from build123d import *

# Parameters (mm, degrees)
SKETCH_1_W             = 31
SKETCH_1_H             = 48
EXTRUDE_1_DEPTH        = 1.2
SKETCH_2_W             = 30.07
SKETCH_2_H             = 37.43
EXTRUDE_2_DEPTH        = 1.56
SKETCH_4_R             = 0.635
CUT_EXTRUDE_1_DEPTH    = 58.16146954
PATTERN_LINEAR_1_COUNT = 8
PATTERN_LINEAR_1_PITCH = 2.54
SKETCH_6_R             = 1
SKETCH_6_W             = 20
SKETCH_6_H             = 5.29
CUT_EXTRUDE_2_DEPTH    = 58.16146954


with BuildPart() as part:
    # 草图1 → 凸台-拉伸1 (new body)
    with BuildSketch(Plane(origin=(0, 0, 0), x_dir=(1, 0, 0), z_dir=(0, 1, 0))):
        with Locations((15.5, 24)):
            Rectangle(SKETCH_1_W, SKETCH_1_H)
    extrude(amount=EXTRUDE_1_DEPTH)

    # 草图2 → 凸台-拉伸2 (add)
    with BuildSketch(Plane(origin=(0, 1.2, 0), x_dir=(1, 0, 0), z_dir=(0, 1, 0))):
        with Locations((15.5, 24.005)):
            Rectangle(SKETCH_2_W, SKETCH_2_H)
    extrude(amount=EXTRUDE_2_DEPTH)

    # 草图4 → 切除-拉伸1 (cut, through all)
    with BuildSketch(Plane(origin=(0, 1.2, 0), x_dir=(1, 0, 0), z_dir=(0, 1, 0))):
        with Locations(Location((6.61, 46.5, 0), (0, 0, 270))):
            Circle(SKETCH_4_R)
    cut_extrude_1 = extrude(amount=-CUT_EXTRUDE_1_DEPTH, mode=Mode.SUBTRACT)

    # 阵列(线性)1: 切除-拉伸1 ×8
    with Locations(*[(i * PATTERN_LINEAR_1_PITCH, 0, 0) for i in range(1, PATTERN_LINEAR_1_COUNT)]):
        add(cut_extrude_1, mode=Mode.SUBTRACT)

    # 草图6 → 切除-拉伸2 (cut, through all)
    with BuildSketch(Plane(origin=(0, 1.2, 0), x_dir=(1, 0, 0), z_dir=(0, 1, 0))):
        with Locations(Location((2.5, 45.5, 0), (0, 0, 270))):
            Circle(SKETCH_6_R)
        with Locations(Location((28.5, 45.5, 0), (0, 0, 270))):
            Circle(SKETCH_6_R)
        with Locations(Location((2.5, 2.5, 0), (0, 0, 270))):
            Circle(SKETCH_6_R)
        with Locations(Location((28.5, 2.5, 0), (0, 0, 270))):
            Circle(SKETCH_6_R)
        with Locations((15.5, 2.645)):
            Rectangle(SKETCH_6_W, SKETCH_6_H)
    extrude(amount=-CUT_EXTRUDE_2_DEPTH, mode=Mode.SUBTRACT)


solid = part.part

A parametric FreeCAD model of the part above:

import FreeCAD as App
import Part
import Sketcher

V = App.Vector

doc = App.newDocument("Part")
body = doc.addObject("PartDesign::Body", "Body")

sketch1 = doc.addObject("Sketcher::SketchObject", "Sketch")
body.addObject(sketch1)
sketch1.AttachmentSupport = (doc.XZ_Plane, [""])
sketch1.MapMode = "FlatFace"
sketch1.addGeometry(Part.LineSegment(V(0, -48, 0), V(0, 0, 0)), False)
sketch1.addGeometry(Part.LineSegment(V(0, 0, 0), V(31, 0, 0)), False)
sketch1.addGeometry(Part.LineSegment(V(31, 0, 0), V(31, -48, 0)), False)
sketch1.addGeometry(Part.LineSegment(V(31, -48, 0), V(0, -48, 0)), False)
sketch1.addConstraint(Sketcher.Constraint("Coincident", 0, 2, 1, 1))
sketch1.addConstraint(Sketcher.Constraint("Coincident", 1, 2, 2, 1))
sketch1.addConstraint(Sketcher.Constraint("Coincident", 2, 2, 3, 1))
sketch1.addConstraint(Sketcher.Constraint("Coincident", 3, 2, 0, 1))
sketch1.addConstraint(Sketcher.Constraint("Vertical", 0))
sketch1.addConstraint(Sketcher.Constraint("Horizontal", 1))
sketch1.addConstraint(Sketcher.Constraint("Vertical", 2))
sketch1.addConstraint(Sketcher.Constraint("Horizontal", 3))
sketch1.addConstraint(Sketcher.Constraint("Coincident", 0, 2, -1, 1))
sketch1.addConstraint(Sketcher.Constraint("DistanceX", 1, 1, 1, 2, 31.0))
sketch1.addConstraint(Sketcher.Constraint("DistanceY", 0, 1, 0, 2, 48.0))
pad1 = doc.addObject("PartDesign::Pad", "Pad")
body.addObject(pad1)
pad1.Profile = sketch1
pad1.Length = 1.2
pad1.Reversed = True

sketch2 = doc.addObject("Sketcher::SketchObject", "Sketch001")
body.addObject(sketch2)
sketch2.AttachmentSupport = (doc.XZ_Plane, [""])
sketch2.MapMode = "FlatFace"
sketch2.AttachmentOffset = App.Placement(V(0, 0, -1.2), App.Rotation())
sketch2.addGeometry(Part.LineSegment(V(0.465, -42.72, 0), V(0.465, -5.29, 0)), False)
sketch2.addGeometry(Part.LineSegment(V(0.465, -5.29, 0), V(30.535, -5.29, 0)), False)
sketch2.addGeometry(Part.LineSegment(V(30.535, -5.29, 0), V(30.535, -42.72, 0)), False)
sketch2.addGeometry(Part.LineSegment(V(30.535, -42.72, 0), V(0.465, -42.72, 0)), False)
sketch2.addConstraint(Sketcher.Constraint("Coincident", 0, 2, 1, 1))
sketch2.addConstraint(Sketcher.Constraint("Coincident", 1, 2, 2, 1))
sketch2.addConstraint(Sketcher.Constraint("Coincident", 2, 2, 3, 1))
sketch2.addConstraint(Sketcher.Constraint("Coincident", 3, 2, 0, 1))
sketch2.addConstraint(Sketcher.Constraint("Vertical", 0))
sketch2.addConstraint(Sketcher.Constraint("Horizontal", 1))
sketch2.addConstraint(Sketcher.Constraint("Vertical", 2))
sketch2.addConstraint(Sketcher.Constraint("Horizontal", 3))
sketch2.addConstraint(Sketcher.Constraint("DistanceX", 1, 1, 1, 2, 30.07))
sketch2.addConstraint(Sketcher.Constraint("DistanceY", 0, 1, 0, 2, 37.43))
sketch2.addConstraint(Sketcher.Constraint("DistanceY", 0, 2, -1, 1, 5.29))
sketch2.addConstraint(Sketcher.Constraint("DistanceX", -1, 1, 0, 2, 0.465))
pad2 = doc.addObject("PartDesign::Pad", "Pad001")
body.addObject(pad2)
pad2.Profile = sketch2
pad2.Length = 1.56
pad2.Reversed = True

sketch3 = doc.addObject("Sketcher::SketchObject", "Sketch002")
body.addObject(sketch3)
sketch3.AttachmentSupport = (doc.XZ_Plane, [""])
sketch3.MapMode = "FlatFace"
sketch3.AttachmentOffset = App.Placement(V(0, 0, -1.2), App.Rotation())
sketch3.addGeometry(Part.Circle(V(6.61, -46.5, 0), V(0, 0, 1), 0.635), False)
sketch3.addConstraint(Sketcher.Constraint("Diameter", 0, 1.27))
sketch3.addConstraint(Sketcher.Constraint("DistanceY", 0, 3, -1, 1, 46.5))
sketch3.addConstraint(Sketcher.Constraint("DistanceX", -1, 1, 0, 3, 6.61))
pocket1 = doc.addObject("PartDesign::Pocket", "Pocket")
body.addObject(pocket1)
pocket1.Profile = sketch3
pocket1.Type = "ThroughAll"
pocket1.Reversed = True
doc.recompute()

linearpattern = doc.addObject("PartDesign::LinearPattern", "LinearPattern")
body.addObject(linearpattern)
linearpattern.Originals = [pocket1]
linearpattern.Direction = (doc.X_Axis, [""])
linearpattern.Mode = "offset"
linearpattern.Offset = 2.54
linearpattern.Occurrences = 8
body.Tip = linearpattern

sketch4 = doc.addObject("Sketcher::SketchObject", "Sketch003")
body.addObject(sketch4)
sketch4.AttachmentSupport = (doc.XZ_Plane, [""])
sketch4.MapMode = "FlatFace"
sketch4.AttachmentOffset = App.Placement(V(0, 0, -1.2), App.Rotation())
sketch4.addGeometry(Part.Circle(V(2.5, -45.5, 0), V(0, 0, 1), 1), False)
sketch4.addGeometry(Part.Circle(V(28.5, -45.5, 0), V(0, 0, 1), 1), False)
sketch4.addGeometry(Part.Circle(V(2.5, -2.5, 0), V(0, 0, 1), 1), False)
sketch4.addGeometry(Part.Circle(V(28.5, -2.5, 0), V(0, 0, 1), 1), False)
sketch4.addGeometry(Part.LineSegment(V(5.5, -5.29, 0), V(5.5, 0, 0)), False)
sketch4.addGeometry(Part.LineSegment(V(5.5, 0, 0), V(25.5, 0, 0)), False)
sketch4.addGeometry(Part.LineSegment(V(25.5, 0, 0), V(25.5, -5.29, 0)), False)
sketch4.addGeometry(Part.LineSegment(V(25.5, -5.29, 0), V(5.5, -5.29, 0)), False)
sketch4.addConstraint(Sketcher.Constraint("Coincident", 4, 2, 5, 1))
sketch4.addConstraint(Sketcher.Constraint("Coincident", 5, 2, 6, 1))
sketch4.addConstraint(Sketcher.Constraint("Coincident", 6, 2, 7, 1))
sketch4.addConstraint(Sketcher.Constraint("Coincident", 7, 2, 4, 1))
sketch4.addConstraint(Sketcher.Constraint("Vertical", 4))
sketch4.addConstraint(Sketcher.Constraint("Horizontal", 5))
sketch4.addConstraint(Sketcher.Constraint("Vertical", 6))
sketch4.addConstraint(Sketcher.Constraint("Horizontal", 7))
sketch4.addConstraint(Sketcher.Constraint("Equal", 0, 1))
sketch4.addConstraint(Sketcher.Constraint("Equal", 1, 2))
sketch4.addConstraint(Sketcher.Constraint("Equal", 2, 3))
sketch4.addConstraint(Sketcher.Constraint("PointOnObject", 4, 2, -1))
sketch4.addConstraint(Sketcher.Constraint("Horizontal", 0, 3, 1, 3))
sketch4.addConstraint(Sketcher.Constraint("Horizontal", 2, 3, 3, 3))
sketch4.addConstraint(Sketcher.Constraint("Vertical", 0, 3, 2, 3))
sketch4.addConstraint(Sketcher.Constraint("Vertical", 1, 3, 3, 3))
sketch4.addConstraint(Sketcher.Constraint("Diameter", 0, 2.0))
sketch4.addConstraint(Sketcher.Constraint("DistanceX", 5, 1, 5, 2, 20.0))
sketch4.addConstraint(Sketcher.Constraint("DistanceX", 0, 3, 1, 3, 26.0))
sketch4.addConstraint(Sketcher.Constraint("DistanceY", 0, 3, 2, 3, 43.0))
sketch4.addConstraint(Sketcher.Constraint("DistanceX", 2, 3, 4, 2, 3.0))
sketch4.addConstraint(Sketcher.Constraint("DistanceY", 4, 1, 4, 2, 5.29))
sketch4.addConstraint(Sketcher.Constraint("DistanceX", -1, 1, 0, 3, 2.5))
sketch4.addConstraint(Sketcher.Constraint("DistanceY", 0, 3, -1, 1, 45.5))
pocket2 = doc.addObject("PartDesign::Pocket", "Pocket001")
body.addObject(pocket2)
pocket2.Profile = sketch4
pocket2.Type = "ThroughAll"
pocket2.Reversed = True

doc.recompute()
